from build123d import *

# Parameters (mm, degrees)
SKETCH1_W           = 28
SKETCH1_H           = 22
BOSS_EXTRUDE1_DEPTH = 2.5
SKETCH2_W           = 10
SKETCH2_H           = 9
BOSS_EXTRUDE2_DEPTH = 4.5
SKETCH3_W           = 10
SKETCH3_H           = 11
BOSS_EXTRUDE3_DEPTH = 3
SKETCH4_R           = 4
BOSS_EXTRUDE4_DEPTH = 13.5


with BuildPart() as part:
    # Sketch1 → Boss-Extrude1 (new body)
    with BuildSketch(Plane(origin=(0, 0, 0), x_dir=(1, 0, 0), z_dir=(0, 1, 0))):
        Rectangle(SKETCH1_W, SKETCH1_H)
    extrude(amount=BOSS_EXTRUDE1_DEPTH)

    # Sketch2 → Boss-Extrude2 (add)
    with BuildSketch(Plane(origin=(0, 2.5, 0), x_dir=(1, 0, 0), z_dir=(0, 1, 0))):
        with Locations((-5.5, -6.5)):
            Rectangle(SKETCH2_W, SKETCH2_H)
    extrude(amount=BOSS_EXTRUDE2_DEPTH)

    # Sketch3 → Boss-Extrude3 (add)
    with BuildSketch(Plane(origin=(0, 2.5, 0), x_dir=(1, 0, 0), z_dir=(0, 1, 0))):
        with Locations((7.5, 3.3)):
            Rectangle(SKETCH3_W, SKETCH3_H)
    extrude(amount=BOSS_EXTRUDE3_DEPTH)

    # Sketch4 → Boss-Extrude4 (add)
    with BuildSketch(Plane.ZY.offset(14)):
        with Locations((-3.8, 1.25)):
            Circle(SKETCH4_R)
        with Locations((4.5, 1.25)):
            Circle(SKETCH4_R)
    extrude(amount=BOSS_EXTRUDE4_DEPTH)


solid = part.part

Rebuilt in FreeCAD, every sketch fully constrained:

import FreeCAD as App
import Part
import Sketcher

V = App.Vector
Q = App.Units.Quantity


def add_polygon(sketch, points):
    """Adds a closed chain of lines whose ends are joined by coincident constraints."""
    first, n = sketch.GeometryCount, len(points)
    for a, b in zip(points, points[1:] + points[:1]):
        sketch.addGeometry(Part.LineSegment(App.Vector(*a, 0), App.Vector(*b, 0)), False)
    for i in range(n):
        sketch.addConstraint(Sketcher.Constraint("Coincident", first + i, 2, first + (i + 1) % n, 1))

doc = App.newDocument("Part")
params = doc.addObject("Spreadsheet::Sheet", "Params")
for row, (alias, value) in enumerate([
    ("sketch1_width", "28 mm"),
    ("sketch1_height", "22 mm"),
    ("pad1_length", "2.5 mm"),
    ("sketch2_width", "10 mm"),
    ("sketch2_height", "9 mm"),
    ("pad2_length", "4.5 mm"),
    ("sketch3_width", "10 mm"),
    ("sketch3_height", "11 mm"),
    ("pad3_length", "3 mm"),
    ("sketch4_diameter", "8 mm"),
    ("pad4_length", "13.5 mm"),
], start=1):
    params.set(f"A{row}", alias)
    params.set(f"B{row}", "=" + value)
    params.setAlias(f"B{row}", alias)

body = doc.addObject("PartDesign::Body", "Body")

sketch1 = body.newObject("Sketcher::SketchObject", "Sketch")
sketch1.AttachmentSupport = (doc.getObject("XZ_Plane"), [""])
sketch1.MapMode = "FlatFace"
add_polygon(sketch1, [(-14, -11), (-14, 11), (14, 11), (14, -11)])
sketch1.addConstraint([
    Sketcher.Constraint("Vertical", 0),
    Sketcher.Constraint("Horizontal", 1),
    Sketcher.Constraint("Vertical", 2),
    Sketcher.Constraint("Horizontal", 3),
    Sketcher.Constraint("Symmetric", 0, 2, 2, 2, -1, 1),
    Sketcher.Constraint("DistanceX", 1, 1, 1, 2, Q("28 mm")),
    Sketcher.Constraint("DistanceY", 0, 1, 0, 2, Q("22 mm")),
])
sketch1.setExpression("Constraints[9]", "Params.sketch1_width")
sketch1.setExpression("Constraints[10]", "Params.sketch1_height")
pad1 = body.newObject("PartDesign::Pad", "Pad")
pad1.Profile = sketch1
pad1.setExpression("Length", "Params.pad1_length")
pad1.Reversed = True

sketch2 = body.newObject("Sketcher::SketchObject", "Sketch001")
sketch2.AttachmentSupport = (doc.getObject("XZ_Plane"), [""])
sketch2.MapMode = "FlatFace"
sketch2.AttachmentOffset = App.Placement(V(0, 0, -2.5), App.Rotation())
add_polygon(sketch2, [(-10, 2), (-10, 11), (0, 11), (0, 2)])
sketch2.addConstraint([
    Sketcher.Constraint("Vertical", 0),
    Sketcher.Constraint("Horizontal", 1),
    Sketcher.Constraint("Vertical", 2),
    Sketcher.Constraint("Horizontal", 3),
    Sketcher.Constraint("DistanceX", 1, 1, 1, 2, Q("10 mm")),
    Sketcher.Constraint("DistanceY", 0, 1, 0, 2, Q("9 mm")),
    Sketcher.Constraint("DistanceY", -1, 1, 0, 2, Q("11 mm")),
    Sketcher.Constraint("DistanceX", 0, 2, -1, 1, Q("10.5 mm")),
])
sketch2.setExpression("Constraints[8]", "Params.sketch2_width")
sketch2.setExpression("Constraints[9]", "Params.sketch2_height")
pad2 = body.newObject("PartDesign::Pad", "Pad001")
pad2.Profile = sketch2
pad2.setExpression("Length", "Params.pad2_length")
pad2.Reversed = True

sketch3 = body.newObject("Sketcher::SketchObject", "Sketch002")
sketch3.AttachmentSupport = (doc.getObject("XZ_Plane"), [""])
sketch3.MapMode = "FlatFace"
sketch3.AttachmentOffset = App.Placement(V(0, 0, -2.5), App.Rotation())
add_polygon(sketch3, [(2, -9), (2, 2), (12, 2), (12, -9)])
sketch3.addConstraint([
    Sketcher.Constraint("Vertical", 0),
    Sketcher.Constraint("Horizontal", 1),
    Sketcher.Constraint("Vertical", 2),
    Sketcher.Constraint("Horizontal", 3),
    Sketcher.Constraint("DistanceX", 1, 1, 1, 2, Q("10 mm")),
    Sketcher.Constraint("DistanceY", 0, 1, 0, 2, Q("11 mm")),
    Sketcher.Constraint("DistanceX", -1, 1, 0, 2, Q("2.5 mm")),
    Sketcher.Constraint("DistanceY", -1, 1, 0, 2, Q("2.2 mm")),
])
sketch3.setExpression("Constraints[8]", "Params.sketch3_width")
sketch3.setExpression("Constraints[9]", "Params.sketch3_height")
pad3 = body.newObject("PartDesign::Pad", "Pad002")
pad3.Profile = sketch3
pad3.setExpression("Length", "Params.pad3_length")
pad3.Reversed = True

sketch4 = body.newObject("Sketcher::SketchObject", "Sketch003")
sketch4.AttachmentSupport = (doc.getObject("YZ_Plane"), [""])
sketch4.MapMode = "FlatFace"
sketch4.AttachmentOffset = App.Placement(V(0, 0, -14), App.Rotation())
sketch4.addGeometry([
    Part.Circle(V(1.2, -3.8, 0), V(0, 0, 1), 4),
    Part.Circle(V(1.2, 4.5, 0), V(0, 0, 1), 4),
], False)
sketch4.addConstraint([
    Sketcher.Constraint("Equal", 0, 1),
    Sketcher.Constraint("Vertical", 0, 3, 1, 3),
    Sketcher.Constraint("Diameter", 0, Q("8 mm")),
    Sketcher.Constraint("DistanceY", 0, 3, -1, 1, Q("3.8 mm")),
    Sketcher.Constraint("DistanceY", -1, 1, 1, 3, Q("4.5 mm")),
    Sketcher.Constraint("DistanceX", -1, 1, 0, 3, Q("1.25 mm")),
])
sketch4.setExpression("Constraints[2]", "Params.sketch4_diameter")
pad4 = body.newObject("PartDesign::Pad", "Pad003")
pad4.Profile = sketch4
pad4.setExpression("Length", "Params.pad4_length")
pad4.Reversed = True

doc.recompute()
